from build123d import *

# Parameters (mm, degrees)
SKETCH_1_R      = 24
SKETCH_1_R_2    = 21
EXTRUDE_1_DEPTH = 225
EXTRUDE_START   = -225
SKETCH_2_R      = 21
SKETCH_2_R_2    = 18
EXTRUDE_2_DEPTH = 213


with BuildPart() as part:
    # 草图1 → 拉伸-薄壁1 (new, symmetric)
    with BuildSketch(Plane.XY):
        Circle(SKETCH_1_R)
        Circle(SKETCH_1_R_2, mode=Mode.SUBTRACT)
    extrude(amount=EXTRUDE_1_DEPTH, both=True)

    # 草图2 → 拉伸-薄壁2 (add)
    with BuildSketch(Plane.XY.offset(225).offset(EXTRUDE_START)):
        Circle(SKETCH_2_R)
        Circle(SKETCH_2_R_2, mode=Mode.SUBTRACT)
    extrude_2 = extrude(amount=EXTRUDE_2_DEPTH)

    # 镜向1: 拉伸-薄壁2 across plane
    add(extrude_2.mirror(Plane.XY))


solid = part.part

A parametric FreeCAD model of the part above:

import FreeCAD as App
import Part
import Sketcher
from FreeCAD import Vector

doc = App.newDocument("Part")
body = doc.addObject("PartDesign::Body", "Body")

sketch1 = body.newObject("Sketcher::SketchObject", "Sketch")
sketch1.AttachmentSupport = (doc.getObject("XY_Plane"), [""])
sketch1.MapMode = "FlatFace"
sketch1.addGeometry([
    Part.Circle(Vector(0, 0, 0), Vector(0, 0, 1), 24),
    Part.Circle(Vector(0, 0, 0), Vector(0, 0, 1), 21),
], False)
sketch1.addConstraint([
    Sketcher.Constraint("Coincident", 0, 3, -1, 1),
    Sketcher.Constraint("Coincident", 1, 3, -1, 1),
    Sketcher.Constraint("Diameter", 0, 48.0),
    Sketcher.Constraint("Diameter", 1, 42.0),
])
pad1 = body.newObject("PartDesign::Pad", "Pad")
pad1.Profile = sketch1
pad1.Length = 450
pad1.Midplane = True

sketch2 = body.newObject("Sketcher::SketchObject", "Sketch001")
sketch2.AttachmentSupport = (doc.getObject("XY_Plane"), [""])
sketch2.MapMode = "FlatFace"
sketch2.addGeometry([
    Part.Circle(Vector(0, 0, 0), Vector(0, 0, 1), 21),
    Part.Circle(Vector(0, 0, 0), Vector(0, 0, 1), 18),
], False)
sketch2.addConstraint([
    Sketcher.Constraint("Coincident", 0, 3, -1, 1),
    Sketcher.Constraint("Coincident", 1, 3, -1, 1),
    Sketcher.Constraint("Diameter", 0, 42.0),
    Sketcher.Constraint("Diameter", 1, 36.0),
])
pad2 = body.newObject("PartDesign::Pad", "Pad001")
pad2.Profile = sketch2
pad2.Length = 213
doc.recompute()

mirrored = body.newObject("PartDesign::Mirrored", "Mirrored")
mirrored.Originals = [pad2]
mirrored.MirrorPlane = (doc.getObject("XY_Plane"), [""])
body.Tip = mirrored

doc.recompute()
